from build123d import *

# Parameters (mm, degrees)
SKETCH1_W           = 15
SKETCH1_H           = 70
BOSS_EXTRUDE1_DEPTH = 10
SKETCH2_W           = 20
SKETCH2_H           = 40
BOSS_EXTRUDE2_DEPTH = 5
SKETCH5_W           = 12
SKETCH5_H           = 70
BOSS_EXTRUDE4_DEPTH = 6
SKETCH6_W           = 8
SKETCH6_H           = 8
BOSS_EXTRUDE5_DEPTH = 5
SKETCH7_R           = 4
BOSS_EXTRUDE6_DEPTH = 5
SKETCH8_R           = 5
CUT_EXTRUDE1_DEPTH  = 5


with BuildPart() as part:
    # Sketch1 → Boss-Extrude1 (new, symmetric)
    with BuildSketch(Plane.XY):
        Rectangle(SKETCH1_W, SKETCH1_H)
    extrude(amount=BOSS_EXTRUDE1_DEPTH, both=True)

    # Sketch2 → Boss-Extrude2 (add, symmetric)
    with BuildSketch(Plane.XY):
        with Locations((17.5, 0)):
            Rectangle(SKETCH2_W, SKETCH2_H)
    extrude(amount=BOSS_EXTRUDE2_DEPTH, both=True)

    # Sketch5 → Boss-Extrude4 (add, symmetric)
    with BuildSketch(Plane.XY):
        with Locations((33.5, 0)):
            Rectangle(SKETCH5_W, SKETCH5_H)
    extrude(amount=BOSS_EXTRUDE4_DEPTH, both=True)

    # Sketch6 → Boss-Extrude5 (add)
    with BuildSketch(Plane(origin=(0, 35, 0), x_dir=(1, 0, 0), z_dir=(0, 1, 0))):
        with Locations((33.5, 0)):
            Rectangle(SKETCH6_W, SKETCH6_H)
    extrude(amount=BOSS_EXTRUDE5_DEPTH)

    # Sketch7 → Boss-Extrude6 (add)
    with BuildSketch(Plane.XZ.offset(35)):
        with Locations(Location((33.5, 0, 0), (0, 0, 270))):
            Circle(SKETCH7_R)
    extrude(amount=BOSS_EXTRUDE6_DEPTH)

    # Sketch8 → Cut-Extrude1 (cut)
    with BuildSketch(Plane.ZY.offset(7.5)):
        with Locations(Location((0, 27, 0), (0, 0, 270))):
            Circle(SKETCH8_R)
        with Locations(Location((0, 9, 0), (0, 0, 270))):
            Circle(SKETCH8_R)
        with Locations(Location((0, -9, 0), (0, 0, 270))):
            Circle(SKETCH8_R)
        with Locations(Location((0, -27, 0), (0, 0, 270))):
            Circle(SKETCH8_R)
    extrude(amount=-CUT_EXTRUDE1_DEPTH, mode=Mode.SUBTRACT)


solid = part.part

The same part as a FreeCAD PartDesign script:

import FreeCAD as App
import Part
import Sketcher
Q = App.Units.Quantity


def add_polygon(sketch, points):
    """Adds a closed chain of lines whose ends are joined by coincident constraints."""
    first, n = sketch.GeometryCount, len(points)
    for a, b in zip(points, points[1:] + points[:1]):
        sketch.addGeometry(Part.LineSegment(App.Vector(*a, 0), App.Vector(*b, 0)), False)
    for i in range(n):
        sketch.addConstraint(Sketcher.Constraint("Coincident", first + i, 2, first + (i + 1) % n, 1))

doc = App.newDocument("Part")
body = doc.addObject("PartDesign::Body", "Body")

# Sketch on XY plane
sketch1 = body.newObject("Sketcher::SketchObject", "Sketch")
sketch1.AttachmentSupport = (doc.getObject("XY_Plane"), [""])
sketch1.MapMode = "FlatFace"
add_polygon(sketch1, [(-8, 35), (-8, -35), (8, -35), (8, 35)])  # lines 0-3
sketch1.addConstraint([
    Sketcher.Constraint("Vertical", 0),
    Sketcher.Constraint("Horizontal", 1),
    Sketcher.Constraint("Vertical", 2),
    Sketcher.Constraint("Horizontal", 3),
    Sketcher.Constraint("Symmetric", 0, 2, 2, 2, -1, 1),
    Sketcher.Constraint("DistanceX", 1, 1, 1, 2, Q("15 mm")),
    Sketcher.Constraint("DistanceY", 0, 2, 0, 1, Q("70 mm")),
])
pad1 = body.newObject("PartDesign::Pad", "Pad")
pad1.Profile = sketch1
pad1.Length = 20
pad1.Midplane = True

# Sketch on XY plane
sketch2 = body.newObject("Sketcher::SketchObject", "Sketch001")
sketch2.AttachmentSupport = (doc.getObject("XY_Plane"), [""])
sketch2.MapMode = "FlatFace"
add_polygon(sketch2, [(8, 20), (8, -20), (28, -20), (28, 20)])  # lines 0-3
sketch2.addConstraint([
    Sketcher.Constraint("Vertical", 0),
    Sketcher.Constraint("Horizontal", 1),
    Sketcher.Constraint("Vertical", 2),
    Sketcher.Constraint("Horizontal", 3),
    Sketcher.Constraint("DistanceX", 1, 1, 1, 2, Q("20 mm")),
    Sketcher.Constraint("DistanceY", 0, 2, 0, 1, Q("40 mm")),
    Sketcher.Constraint("DistanceY", 0, 2, -1, 1, Q("20 mm")),
    Sketcher.Constraint("DistanceX", -1, 1, 0, 2, Q("7.5 mm")),
])
pad2 = body.newObject("PartDesign::Pad", "Pad001")
pad2.Profile = sketch2
pad2.Length = 10
pad2.Midplane = True

# Sketch on XY plane
sketch3 = body.newObject("Sketcher::SketchObject", "Sketch002")
sketch3.AttachmentSupport = (doc.getObject("XY_Plane"), [""])
sketch3.MapMode = "FlatFace"
add_polygon(sketch3, [(28, 35), (28, -35), (40, -35), (40, 35)])  # lines 0-3
sketch3.addConstraint([
    Sketcher.Constraint("Vertical", 0),
    Sketcher.Constraint("Horizontal", 1),
    Sketcher.Constraint("Vertical", 2),
    Sketcher.Constraint("Horizontal", 3),
    Sketcher.Constraint("DistanceX", 1, 1, 1, 2, Q("12 mm")),
    Sketcher.Constraint("DistanceY", 0, 2, 0, 1, Q("70 mm")),
    Sketcher.Constraint("DistanceY", 0, 2, -1, 1, Q("35 mm")),
    Sketcher.Constraint("DistanceX", -1, 1, 0, 2, Q("27.5 mm")),
])
pad3 = body.newObject("PartDesign::Pad", "Pad002")
pad3.Profile = sketch3
pad3.Length = 12
pad3.Midplane = True

# Sketch on XZ plane
sketch4 = body.newObject("Sketcher::SketchObject", "Sketch003")
sketch4.AttachmentSupport = (doc.getObject("XZ_Plane"), [""])
sketch4.MapMode = "FlatFace"
sketch4.AttachmentOffset = App.Placement(App.Vector(0, 0, -35), App.Rotation())
add_polygon(sketch4, [(30, -4), (30, 4), (38, 4), (38, -4)])  # lines 0-3
sketch4.addConstraint([
    Sketcher.Constraint("Vertical", 0),
    Sketcher.Constraint("Horizontal", 1),
    Sketcher.Constraint("Vertical", 2),
    Sketcher.Constraint("Horizontal", 3),
    Sketcher.Constraint("Equal", 3, 0),
    Sketcher.Constraint("DistanceX", 1, 1, 1, 2, Q("8 mm")),
    Sketcher.Constraint("DistanceY", -1, 1, 0, 2, Q("4 mm")),
    Sketcher.Constraint("DistanceX", -1, 1, 0, 2, Q("29.5 mm")),
])
pad4 = body.newObject("PartDesign::Pad", "Pad003")
pad4.Profile = sketch4
pad4.Length = 5
pad4.Reversed = True

# Sketch on XZ plane
sketch5 = body.newObject("Sketcher::SketchObject", "Sketch004")
sketch5.AttachmentSupport = (doc.getObject("XZ_Plane"), [""])
sketch5.MapMode = "FlatFace"
sketch5.AttachmentOffset = App.Placement(App.Vector(0, 0, 35), App.Rotation())
sketch5.addGeometry(Part.Circle(App.Vector(33.5, 0, 0), App.Vector(0, 0, 1), 4), False)
sketch5.addConstraint([
    Sketcher.Constraint("PointOnObject", 0, 3, -1),
    Sketcher.Constraint("Diameter", 0, Q("8 mm")),
    Sketcher.Constraint("DistanceX", -1, 1, 0, 3, Q("33.5 mm")),
])
pad5 = body.newObject("PartDesign::Pad", "Pad004")
pad5.Profile = sketch5
pad5.Length = 5

# Sketch on YZ plane
sketch6 = body.newObject("Sketcher::SketchObject", "Sketch005")
sketch6.AttachmentSupport = (doc.getObject("YZ_Plane"), [""])
sketch6.MapMode = "FlatFace"
sketch6.AttachmentOffset = App.Placement(App.Vector(0, 0, -7.5), App.Rotation())
sketch6.addGeometry([
    Part.Circle(App.Vector(27, 0, 0), App.Vector(0, 0, 1), 5),
    Part.Circle(App.Vector(9, 0, 0), App.Vector(0, 0, 1), 5),
    Part.Circle(App.Vector(-9, 0, 0), App.Vector(0, 0, 1), 5),
    Part.Circle(App.Vector(-27, 0, 0), App.Vector(0, 0, 1), 5),
], False)
sketch6.addConstraint([
    Sketcher.Constraint("Equal", 0, 1),
    Sketcher.Constraint("Equal", 1, 2),
    Sketcher.Constraint("Equal", 2, 3),
    Sketcher.Constraint("Symmetric", 1, 3, 2, 3, -1, 1),
    Sketcher.Constraint("Symmetric", 0, 3, 3, 3, -1, 1),
    Sketcher.Constraint("PointOnObject", 0, 3, -1),
    Sketcher.Constraint("PointOnObject", 1, 3, -1),
    Sketcher.Constraint("Diameter", 0, Q("10 mm")),
    Sketcher.Constraint("DistanceX", -1, 1, 0, 3, Q("27 mm")),
    Sketcher.Constraint("DistanceX", -1, 1, 1, 3, Q("9 mm")),
])
pocket1 = body.newObject("PartDesign::Pocket", "Pocket")
pocket1.Profile = sketch6
pocket1.Length = 5
pocket1.Reversed = True

doc.recompute()
